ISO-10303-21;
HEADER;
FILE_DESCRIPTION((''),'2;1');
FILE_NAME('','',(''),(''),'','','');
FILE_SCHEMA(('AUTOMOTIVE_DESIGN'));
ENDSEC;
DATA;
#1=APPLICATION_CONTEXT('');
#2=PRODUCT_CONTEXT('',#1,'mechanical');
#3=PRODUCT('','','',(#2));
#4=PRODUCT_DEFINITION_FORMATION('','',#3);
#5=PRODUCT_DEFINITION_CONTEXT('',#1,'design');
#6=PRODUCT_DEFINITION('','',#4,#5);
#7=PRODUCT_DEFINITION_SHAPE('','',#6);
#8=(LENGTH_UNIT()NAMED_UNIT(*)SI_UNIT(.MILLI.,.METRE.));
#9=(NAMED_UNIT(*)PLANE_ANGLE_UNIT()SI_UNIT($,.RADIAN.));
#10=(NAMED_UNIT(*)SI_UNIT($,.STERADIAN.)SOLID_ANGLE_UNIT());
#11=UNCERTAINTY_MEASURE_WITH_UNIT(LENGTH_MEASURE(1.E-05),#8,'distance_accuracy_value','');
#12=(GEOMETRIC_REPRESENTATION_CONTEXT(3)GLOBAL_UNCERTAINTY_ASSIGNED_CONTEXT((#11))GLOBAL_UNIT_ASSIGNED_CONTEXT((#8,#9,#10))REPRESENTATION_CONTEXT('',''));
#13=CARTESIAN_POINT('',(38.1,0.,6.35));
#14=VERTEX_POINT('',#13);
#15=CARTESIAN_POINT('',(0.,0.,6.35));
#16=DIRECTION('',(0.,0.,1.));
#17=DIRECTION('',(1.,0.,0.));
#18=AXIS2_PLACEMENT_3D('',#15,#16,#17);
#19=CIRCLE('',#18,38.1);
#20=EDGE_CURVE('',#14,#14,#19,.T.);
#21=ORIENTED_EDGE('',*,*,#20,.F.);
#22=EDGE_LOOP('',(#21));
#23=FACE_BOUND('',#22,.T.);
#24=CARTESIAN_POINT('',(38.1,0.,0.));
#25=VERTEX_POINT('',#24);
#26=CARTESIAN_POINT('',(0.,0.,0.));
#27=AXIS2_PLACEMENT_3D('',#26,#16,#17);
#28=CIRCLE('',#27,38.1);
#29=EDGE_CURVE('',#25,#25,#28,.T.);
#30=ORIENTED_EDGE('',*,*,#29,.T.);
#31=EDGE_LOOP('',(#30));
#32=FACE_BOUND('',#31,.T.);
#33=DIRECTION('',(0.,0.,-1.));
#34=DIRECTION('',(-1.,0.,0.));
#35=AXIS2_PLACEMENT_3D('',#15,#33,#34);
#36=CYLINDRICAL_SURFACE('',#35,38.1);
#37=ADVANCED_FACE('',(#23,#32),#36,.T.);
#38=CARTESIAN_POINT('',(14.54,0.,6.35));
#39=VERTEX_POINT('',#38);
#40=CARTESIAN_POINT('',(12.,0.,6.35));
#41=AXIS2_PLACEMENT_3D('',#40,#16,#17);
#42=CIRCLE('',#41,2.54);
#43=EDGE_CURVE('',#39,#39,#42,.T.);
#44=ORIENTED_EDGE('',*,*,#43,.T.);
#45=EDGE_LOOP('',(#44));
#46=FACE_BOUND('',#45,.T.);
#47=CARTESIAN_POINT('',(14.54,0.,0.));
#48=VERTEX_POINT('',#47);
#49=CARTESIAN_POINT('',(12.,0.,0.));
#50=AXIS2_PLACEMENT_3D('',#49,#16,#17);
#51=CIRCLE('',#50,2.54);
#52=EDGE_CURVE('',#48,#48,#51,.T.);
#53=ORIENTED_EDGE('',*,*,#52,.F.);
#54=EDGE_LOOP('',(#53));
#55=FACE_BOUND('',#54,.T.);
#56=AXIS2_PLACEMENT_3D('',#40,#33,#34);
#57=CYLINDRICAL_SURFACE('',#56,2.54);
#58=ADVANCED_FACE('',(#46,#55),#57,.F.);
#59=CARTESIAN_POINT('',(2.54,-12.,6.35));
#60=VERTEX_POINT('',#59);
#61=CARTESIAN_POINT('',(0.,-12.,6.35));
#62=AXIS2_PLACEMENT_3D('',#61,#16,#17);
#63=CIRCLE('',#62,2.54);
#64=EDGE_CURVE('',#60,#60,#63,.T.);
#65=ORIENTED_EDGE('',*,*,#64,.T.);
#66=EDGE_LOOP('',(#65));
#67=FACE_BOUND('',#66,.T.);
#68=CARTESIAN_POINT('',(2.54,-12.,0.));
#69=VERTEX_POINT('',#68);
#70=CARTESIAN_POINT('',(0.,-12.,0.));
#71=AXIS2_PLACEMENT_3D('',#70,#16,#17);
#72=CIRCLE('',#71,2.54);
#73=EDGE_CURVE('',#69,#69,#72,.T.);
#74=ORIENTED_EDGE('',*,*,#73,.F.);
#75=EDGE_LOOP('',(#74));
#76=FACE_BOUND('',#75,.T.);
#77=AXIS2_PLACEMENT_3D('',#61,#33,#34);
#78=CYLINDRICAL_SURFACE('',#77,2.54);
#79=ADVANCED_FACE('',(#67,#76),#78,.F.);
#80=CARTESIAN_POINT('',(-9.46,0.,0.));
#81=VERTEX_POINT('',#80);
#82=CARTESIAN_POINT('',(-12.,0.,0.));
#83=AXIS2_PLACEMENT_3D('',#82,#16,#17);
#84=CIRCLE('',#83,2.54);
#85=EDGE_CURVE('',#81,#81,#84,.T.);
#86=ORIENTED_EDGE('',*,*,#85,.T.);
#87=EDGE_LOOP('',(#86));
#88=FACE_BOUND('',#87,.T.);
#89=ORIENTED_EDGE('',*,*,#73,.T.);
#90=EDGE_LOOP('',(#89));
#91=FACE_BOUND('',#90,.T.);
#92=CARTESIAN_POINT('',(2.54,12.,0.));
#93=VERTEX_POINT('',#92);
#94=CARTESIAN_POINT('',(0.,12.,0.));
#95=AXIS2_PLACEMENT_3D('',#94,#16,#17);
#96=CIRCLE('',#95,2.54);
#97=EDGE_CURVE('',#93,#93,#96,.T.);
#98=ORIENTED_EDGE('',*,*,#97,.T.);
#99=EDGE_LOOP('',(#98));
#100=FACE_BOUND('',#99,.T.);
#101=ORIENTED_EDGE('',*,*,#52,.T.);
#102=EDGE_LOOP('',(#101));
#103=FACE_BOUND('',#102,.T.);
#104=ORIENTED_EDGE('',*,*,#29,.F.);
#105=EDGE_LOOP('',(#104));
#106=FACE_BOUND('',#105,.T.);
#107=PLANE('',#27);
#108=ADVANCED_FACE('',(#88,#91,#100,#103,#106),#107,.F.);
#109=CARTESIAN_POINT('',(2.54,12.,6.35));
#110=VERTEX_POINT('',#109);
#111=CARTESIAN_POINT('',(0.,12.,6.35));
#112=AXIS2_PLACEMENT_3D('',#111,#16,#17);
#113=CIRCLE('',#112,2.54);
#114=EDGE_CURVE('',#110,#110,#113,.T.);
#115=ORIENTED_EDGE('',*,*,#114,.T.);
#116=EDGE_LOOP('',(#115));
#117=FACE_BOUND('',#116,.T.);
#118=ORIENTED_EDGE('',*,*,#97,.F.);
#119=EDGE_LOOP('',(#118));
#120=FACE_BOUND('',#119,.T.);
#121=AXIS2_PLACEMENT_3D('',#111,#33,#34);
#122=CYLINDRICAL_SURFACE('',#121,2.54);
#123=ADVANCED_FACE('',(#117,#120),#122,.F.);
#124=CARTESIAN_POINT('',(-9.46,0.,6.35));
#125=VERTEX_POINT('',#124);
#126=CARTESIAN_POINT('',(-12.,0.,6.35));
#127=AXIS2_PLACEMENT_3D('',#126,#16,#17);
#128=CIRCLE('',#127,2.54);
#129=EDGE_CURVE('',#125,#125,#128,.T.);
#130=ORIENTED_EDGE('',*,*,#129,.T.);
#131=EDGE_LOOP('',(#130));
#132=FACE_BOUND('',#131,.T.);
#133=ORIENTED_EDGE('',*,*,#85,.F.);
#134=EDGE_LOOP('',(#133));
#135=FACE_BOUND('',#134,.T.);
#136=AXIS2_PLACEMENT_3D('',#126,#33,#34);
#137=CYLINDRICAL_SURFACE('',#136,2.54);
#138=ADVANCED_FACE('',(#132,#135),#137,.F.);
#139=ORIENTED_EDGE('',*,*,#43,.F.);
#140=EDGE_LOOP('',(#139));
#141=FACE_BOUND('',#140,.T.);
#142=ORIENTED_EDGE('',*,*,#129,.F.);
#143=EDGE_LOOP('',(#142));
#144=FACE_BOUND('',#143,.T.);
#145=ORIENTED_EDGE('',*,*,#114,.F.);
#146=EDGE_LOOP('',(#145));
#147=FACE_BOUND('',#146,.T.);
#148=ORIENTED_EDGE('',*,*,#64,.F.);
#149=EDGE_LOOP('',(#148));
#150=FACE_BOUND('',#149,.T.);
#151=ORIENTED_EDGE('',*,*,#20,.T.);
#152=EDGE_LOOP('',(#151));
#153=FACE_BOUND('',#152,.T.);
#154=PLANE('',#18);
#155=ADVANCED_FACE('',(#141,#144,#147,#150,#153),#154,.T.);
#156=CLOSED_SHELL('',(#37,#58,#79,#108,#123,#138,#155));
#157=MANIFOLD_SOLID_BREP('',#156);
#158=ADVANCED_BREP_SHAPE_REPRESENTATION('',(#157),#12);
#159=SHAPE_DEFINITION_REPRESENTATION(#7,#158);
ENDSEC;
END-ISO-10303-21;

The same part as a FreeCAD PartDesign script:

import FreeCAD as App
import Part
import Sketcher
Q = App.Units.Quantity

doc = App.newDocument("Part")
body = doc.addObject("PartDesign::Body", "Body")

# Sketch on XY plane
sketch1 = doc.addObject("Sketcher::SketchObject", "Sketch")
body.addObject(sketch1)
sketch1.AttachmentSupport = (doc.XY_Plane, [""])
sketch1.MapMode = "FlatFace"
sketch1.addGeometry([
    Part.Circle(App.Vector(0, 0, 0), App.Vector(0, 0, 1), 38.1),  # 0
    Part.Circle(App.Vector(0, -12, 0), App.Vector(0, 0, 1), 2.54),  # 1
    Part.Circle(App.Vector(-12, 0, 0), App.Vector(0, 0, 1), 2.54),  # 2
    Part.Circle(App.Vector(12, 0, 0), App.Vector(0, 0, 1), 2.54),  # 3
    Part.Circle(App.Vector(0, 12, 0), App.Vector(0, 0, 1), 2.54),  # 4
], False)
sketch1.addConstraint([
    Sketcher.Constraint("Coincident", 0, 3, -1, 1),
    Sketcher.Constraint("Equal", 1, 2),
    Sketcher.Constraint("Equal", 2, 3),
    Sketcher.Constraint("Equal", 3, 4),
    Sketcher.Constraint("Symmetric", 2, 3, 3, 3, -1, 1),
    Sketcher.Constraint("Symmetric", 1, 3, 4, 3, -1, 1),
    Sketcher.Constraint("PointOnObject", 1, 3, -2),
    Sketcher.Constraint("PointOnObject", 2, 3, -1),
    Sketcher.Constraint("Diameter", 0, Q("3 in")),
    Sketcher.Constraint("Diameter", 1, Q("0.2 in")),
    Sketcher.Constraint("DistanceY", 1, 3, -1, 1, 12.0),
    Sketcher.Constraint("DistanceX", 2, 3, -1, 1, 12.0),
])
pad1 = doc.addObject("PartDesign::Pad", "Pad")
body.addObject(pad1)
pad1.Profile = sketch1
pad1.Length = Q("0.25 in")

doc.recompute()
